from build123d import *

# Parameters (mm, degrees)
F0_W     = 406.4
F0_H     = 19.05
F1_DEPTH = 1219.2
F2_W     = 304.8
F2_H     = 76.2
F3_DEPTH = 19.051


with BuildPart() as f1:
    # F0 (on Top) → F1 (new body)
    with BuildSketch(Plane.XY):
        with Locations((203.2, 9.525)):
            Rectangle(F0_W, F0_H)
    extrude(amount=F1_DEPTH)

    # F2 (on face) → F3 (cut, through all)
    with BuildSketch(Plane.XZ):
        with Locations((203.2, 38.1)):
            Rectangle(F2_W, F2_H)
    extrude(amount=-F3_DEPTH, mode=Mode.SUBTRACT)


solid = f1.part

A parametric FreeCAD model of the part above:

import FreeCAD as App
import Part
import Sketcher
from FreeCAD import Vector
Q = App.Units.Quantity


def add_polygon(sketch, points):
    """Adds a closed chain of lines whose ends are joined by coincident constraints."""
    first, n = sketch.GeometryCount, len(points)
    for a, b in zip(points, points[1:] + points[:1]):
        sketch.addGeometry(Part.LineSegment(App.Vector(*a, 0), App.Vector(*b, 0)), False)
    for i in range(n):
        sketch.addConstraint(Sketcher.Constraint("Coincident", first + i, 2, first + (i + 1) % n, 1))

doc = App.newDocument("Part")
body = doc.addObject("PartDesign::Body", "Body")

sketch1 = body.newObject("Sketcher::SketchObject", "Sketch")
sketch1.AttachmentSupport = (doc.getObject("XY_Plane"), [""])
sketch1.MapMode = "FlatFace"
add_polygon(sketch1, [(0, 19), (0, 0), (406, 0), (406, 19)])
sketch1.addConstraint([
    Sketcher.Constraint("Vertical", 0),
    Sketcher.Constraint("Horizontal", 1),
    Sketcher.Constraint("Vertical", 2),
    Sketcher.Constraint("Horizontal", 3),
    Sketcher.Constraint("Coincident", 0, 2, -1, 1),
    Sketcher.Constraint("DistanceX", 1, 1, 1, 2, Q("16 in")),
    Sketcher.Constraint("DistanceY", 0, 2, 0, 1, Q("0.75 in")),
])
pad1 = body.newObject("PartDesign::Pad", "Pad")
pad1.Profile = sketch1
pad1.Length = Q("48 in")

sketch2 = body.newObject("Sketcher::SketchObject", "Sketch001")
sketch2.AttachmentSupport = (doc.getObject("XZ_Plane"), [""])
sketch2.MapMode = "FlatFace"
add_polygon(sketch2, [(51, 76), (51, 0), (356, 0), (356, 76)])
sketch2.addConstraint([
    Sketcher.Constraint("Vertical", 0),
    Sketcher.Constraint("Horizontal", 1),
    Sketcher.Constraint("Vertical", 2),
    Sketcher.Constraint("Horizontal", 3),
    Sketcher.Constraint("PointOnObject", 0, 2, -1),
    Sketcher.Constraint("DistanceX", 1, 1, 1, 2, Q("12 in")),
    Sketcher.Constraint("DistanceY", 0, 2, 0, 1, Q("3 in")),
    Sketcher.Constraint("DistanceX", -1, 1, 0, 2, Q("2 in")),
])
pocket1 = body.newObject("PartDesign::Pocket", "Pocket")
pocket1.Profile = sketch2
pocket1.Type = "ThroughAll"

doc.recompute()
